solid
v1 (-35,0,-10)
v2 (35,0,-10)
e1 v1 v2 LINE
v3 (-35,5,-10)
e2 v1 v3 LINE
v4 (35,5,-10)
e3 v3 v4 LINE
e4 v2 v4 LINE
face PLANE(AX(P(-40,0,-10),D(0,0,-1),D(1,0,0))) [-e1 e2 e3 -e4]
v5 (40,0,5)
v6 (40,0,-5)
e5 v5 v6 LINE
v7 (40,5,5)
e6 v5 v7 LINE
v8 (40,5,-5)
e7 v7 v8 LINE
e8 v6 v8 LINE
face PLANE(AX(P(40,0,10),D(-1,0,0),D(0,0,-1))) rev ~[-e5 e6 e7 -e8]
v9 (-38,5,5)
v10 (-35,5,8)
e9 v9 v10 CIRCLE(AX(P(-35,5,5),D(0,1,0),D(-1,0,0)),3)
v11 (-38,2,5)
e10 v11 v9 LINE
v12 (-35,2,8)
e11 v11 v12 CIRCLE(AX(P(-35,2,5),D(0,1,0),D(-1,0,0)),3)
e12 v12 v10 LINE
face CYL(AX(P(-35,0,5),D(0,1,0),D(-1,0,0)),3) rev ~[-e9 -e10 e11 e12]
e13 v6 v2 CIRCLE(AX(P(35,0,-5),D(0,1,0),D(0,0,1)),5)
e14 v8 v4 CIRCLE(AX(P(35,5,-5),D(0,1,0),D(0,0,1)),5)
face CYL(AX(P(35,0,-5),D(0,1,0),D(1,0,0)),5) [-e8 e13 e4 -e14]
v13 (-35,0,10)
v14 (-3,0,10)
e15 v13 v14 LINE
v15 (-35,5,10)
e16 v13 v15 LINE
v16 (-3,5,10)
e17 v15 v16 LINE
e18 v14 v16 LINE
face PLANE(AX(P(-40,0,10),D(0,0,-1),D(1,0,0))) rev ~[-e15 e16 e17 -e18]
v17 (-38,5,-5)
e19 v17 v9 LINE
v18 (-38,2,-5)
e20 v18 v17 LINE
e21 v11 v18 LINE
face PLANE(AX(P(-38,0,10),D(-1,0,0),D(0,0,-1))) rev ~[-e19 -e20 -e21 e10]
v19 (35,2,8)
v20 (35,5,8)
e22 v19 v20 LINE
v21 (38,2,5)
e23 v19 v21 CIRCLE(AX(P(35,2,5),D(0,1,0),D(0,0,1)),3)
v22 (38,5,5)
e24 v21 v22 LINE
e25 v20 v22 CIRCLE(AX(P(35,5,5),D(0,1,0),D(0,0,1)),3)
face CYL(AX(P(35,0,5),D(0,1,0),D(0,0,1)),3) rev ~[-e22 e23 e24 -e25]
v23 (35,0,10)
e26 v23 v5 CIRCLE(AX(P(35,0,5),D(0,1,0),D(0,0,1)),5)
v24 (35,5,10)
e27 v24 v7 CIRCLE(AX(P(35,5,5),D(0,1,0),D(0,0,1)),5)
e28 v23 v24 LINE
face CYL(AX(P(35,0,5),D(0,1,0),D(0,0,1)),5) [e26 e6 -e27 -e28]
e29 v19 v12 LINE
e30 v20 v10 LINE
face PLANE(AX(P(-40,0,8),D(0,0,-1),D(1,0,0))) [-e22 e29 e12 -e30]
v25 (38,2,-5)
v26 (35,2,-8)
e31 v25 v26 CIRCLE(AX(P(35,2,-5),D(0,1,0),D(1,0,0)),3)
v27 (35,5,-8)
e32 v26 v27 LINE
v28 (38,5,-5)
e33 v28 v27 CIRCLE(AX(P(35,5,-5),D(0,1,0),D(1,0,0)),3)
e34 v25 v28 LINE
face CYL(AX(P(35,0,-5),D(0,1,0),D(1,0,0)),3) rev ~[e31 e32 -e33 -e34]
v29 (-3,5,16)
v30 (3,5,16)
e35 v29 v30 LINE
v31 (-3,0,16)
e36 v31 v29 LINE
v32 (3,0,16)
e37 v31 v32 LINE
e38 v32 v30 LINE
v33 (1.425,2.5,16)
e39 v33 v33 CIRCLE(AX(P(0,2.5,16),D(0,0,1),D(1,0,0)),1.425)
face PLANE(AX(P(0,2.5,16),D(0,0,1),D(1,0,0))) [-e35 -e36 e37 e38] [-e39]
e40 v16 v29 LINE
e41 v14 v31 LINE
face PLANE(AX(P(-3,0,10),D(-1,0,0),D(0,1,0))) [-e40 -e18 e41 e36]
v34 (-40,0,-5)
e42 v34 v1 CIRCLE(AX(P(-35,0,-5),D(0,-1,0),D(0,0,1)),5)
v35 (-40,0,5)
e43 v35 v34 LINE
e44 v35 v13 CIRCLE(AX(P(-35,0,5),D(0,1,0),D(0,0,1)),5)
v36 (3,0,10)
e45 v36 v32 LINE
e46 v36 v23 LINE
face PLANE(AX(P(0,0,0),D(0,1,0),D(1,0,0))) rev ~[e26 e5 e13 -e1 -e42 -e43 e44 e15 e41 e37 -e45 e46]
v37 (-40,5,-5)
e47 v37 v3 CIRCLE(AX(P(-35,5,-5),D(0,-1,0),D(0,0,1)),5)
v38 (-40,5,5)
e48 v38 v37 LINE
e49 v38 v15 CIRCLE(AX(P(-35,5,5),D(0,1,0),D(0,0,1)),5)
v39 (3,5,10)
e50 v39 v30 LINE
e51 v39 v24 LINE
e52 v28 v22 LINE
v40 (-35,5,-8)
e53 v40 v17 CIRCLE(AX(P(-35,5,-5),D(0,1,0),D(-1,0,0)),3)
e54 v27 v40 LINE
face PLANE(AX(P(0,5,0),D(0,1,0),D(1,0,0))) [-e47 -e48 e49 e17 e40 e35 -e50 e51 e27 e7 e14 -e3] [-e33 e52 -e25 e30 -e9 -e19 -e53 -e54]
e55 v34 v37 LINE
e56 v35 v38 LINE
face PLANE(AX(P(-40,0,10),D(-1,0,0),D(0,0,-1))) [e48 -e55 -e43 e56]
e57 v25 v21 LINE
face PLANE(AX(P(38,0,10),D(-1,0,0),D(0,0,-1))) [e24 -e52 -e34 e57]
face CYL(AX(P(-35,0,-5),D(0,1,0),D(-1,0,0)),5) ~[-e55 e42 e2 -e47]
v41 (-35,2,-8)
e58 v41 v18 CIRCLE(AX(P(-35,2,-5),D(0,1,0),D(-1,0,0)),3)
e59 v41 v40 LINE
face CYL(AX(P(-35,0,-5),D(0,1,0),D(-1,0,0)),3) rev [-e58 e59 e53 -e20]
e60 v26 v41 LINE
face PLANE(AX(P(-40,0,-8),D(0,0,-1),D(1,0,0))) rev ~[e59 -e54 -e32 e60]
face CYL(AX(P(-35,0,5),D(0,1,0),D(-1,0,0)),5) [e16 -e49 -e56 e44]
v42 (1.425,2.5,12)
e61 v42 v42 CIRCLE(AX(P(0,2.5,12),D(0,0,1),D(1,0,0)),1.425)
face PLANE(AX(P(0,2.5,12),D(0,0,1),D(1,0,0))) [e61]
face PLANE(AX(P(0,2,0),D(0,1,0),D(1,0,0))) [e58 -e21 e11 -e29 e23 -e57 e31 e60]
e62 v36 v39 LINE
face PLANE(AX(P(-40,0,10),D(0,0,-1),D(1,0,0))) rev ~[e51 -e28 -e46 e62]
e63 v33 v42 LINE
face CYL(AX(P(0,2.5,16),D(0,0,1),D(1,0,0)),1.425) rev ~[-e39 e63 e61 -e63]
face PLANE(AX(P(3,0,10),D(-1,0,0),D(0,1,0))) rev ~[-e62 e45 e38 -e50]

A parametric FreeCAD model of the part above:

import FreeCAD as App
import Part
import Sketcher
from FreeCAD import Vector


def edges_at(feature, points):
    """Names of the edges that pass closest to the given points."""
    edges = feature.Shape.Edges
    near = lambda p: min(range(len(edges)), key=lambda i: edges[i].distToShape(Part.Vertex(*p))[0])
    return sorted({f"Edge{near(p) + 1}" for p in points})


def faces_at(feature, points):
    """Names of the faces that lie closest to the given points."""
    faces = feature.Shape.Faces
    near = lambda p: min(range(len(faces)), key=lambda i: faces[i].distToShape(Part.Vertex(*p))[0])
    return sorted({f"Face{near(p) + 1}" for p in points})

doc = App.newDocument("Part")
params = doc.addObject("Spreadsheet::Sheet", "Params")
for row, (alias, value) in enumerate([
    ("sketch1_width", "80 mm"),
    ("sketch1_height", "20 mm"),
    ("pad1_length", "5 mm"),
    ("fillet_radius", "5 mm"),
    ("thickness_wall", "2 mm"),
    ("sketch2_width", "6 mm"),
    ("sketch2_height", "5 mm"),
    ("pad2_length", "6 mm"),
    ("sketch3_diameter", "2.85 mm"),
    ("pocket1_length", "4 mm"),
], start=1):
    params.set(f"A{row}", alias)
    params.set(f"B{row}", "=" + value)
    params.setAlias(f"B{row}", alias)

body = doc.addObject("PartDesign::Body", "Body")

# Sketch on XZ plane
sketch1 = doc.addObject("Sketcher::SketchObject", "Sketch")
body.addObject(sketch1)
sketch1.AttachmentSupport = (doc.XZ_Plane, [""])
sketch1.MapMode = "FlatFace"
sketch1.addGeometry([
    Part.LineSegment(Vector(-40, -10, 0), Vector(-40, 10, 0)),
    Part.LineSegment(Vector(-40, 10, 0), Vector(40, 10, 0)),
    Part.LineSegment(Vector(40, 10, 0), Vector(40, -10, 0)),
    Part.LineSegment(Vector(40, -10, 0), Vector(-40, -10, 0)),
], False)
sketch1.addConstraint([
    Sketcher.Constraint("Coincident", 0, 2, 1, 1),
    Sketcher.Constraint("Coincident", 1, 2, 2, 1),
    Sketcher.Constraint("Coincident", 2, 2, 3, 1),
    Sketcher.Constraint("Coincident", 3, 2, 0, 1),
    Sketcher.Constraint("Vertical", 0),
    Sketcher.Constraint("Horizontal", 1),
    Sketcher.Constraint("Vertical", 2),
    Sketcher.Constraint("Horizontal", 3),
    Sketcher.Constraint("Symmetric", 0, 2, 2, 2, -1, 1),
    Sketcher.Constraint("DistanceX", 1, 1, 1, 2, 80.0),
    Sketcher.Constraint("DistanceY", 0, 1, 0, 2, 20.0),
])
sketch1.setExpression("Constraints[9]", "Params.sketch1_width")
sketch1.setExpression("Constraints[10]", "Params.sketch1_height")
pad1 = doc.addObject("PartDesign::Pad", "Pad")
body.addObject(pad1)
pad1.Profile = sketch1
pad1.setExpression("Length", "Params.pad1_length")
pad1.Reversed = True
doc.recompute()

fillet = doc.addObject("PartDesign::Fillet", "Fillet")
body.addObject(fillet)
fillet.Base = (pad1, edges_at(pad1, [
    (40, 2.5, 10),
    (-40, 2.5, 10),
    (-40, 2.5, -10),
    (40, 2.5, -10),
]))
fillet.setExpression("Radius", "Params.fillet_radius")
doc.recompute()

thickness = doc.addObject("PartDesign::Thickness", "Thickness")
body.addObject(thickness)
thickness.Base = (fillet, faces_at(fillet, [(0, 5, 0)]))
thickness.setExpression("Value", "Params.thickness_wall")
thickness.Reversed = True
thickness.Join = "Intersection"

# Sketch on XY plane
sketch2 = doc.addObject("Sketcher::SketchObject", "Sketch001")
body.addObject(sketch2)
sketch2.AttachmentSupport = (doc.XY_Plane, [""])
sketch2.MapMode = "FlatFace"
sketch2.AttachmentOffset = App.Placement(Vector(0, 0, 10), App.Rotation())
sketch2.addGeometry([
    Part.LineSegment(Vector(-3, 5, 0), Vector(-3, 0, 0)),
    Part.LineSegment(Vector(-3, 0, 0), Vector(3, 0, 0)),
    Part.LineSegment(Vector(3, 0, 0), Vector(3, 5, 0)),
    Part.LineSegment(Vector(3, 5, 0), Vector(-3, 5, 0)),
], False)
sketch2.addConstraint([
    Sketcher.Constraint("Coincident", 0, 2, 1, 1),
    Sketcher.Constraint("Coincident", 1, 2, 2, 1),
    Sketcher.Constraint("Coincident", 2, 2, 3, 1),
    Sketcher.Constraint("Coincident", 3, 2, 0, 1),
    Sketcher.Constraint("Vertical", 0),
    Sketcher.Constraint("Horizontal", 1),
    Sketcher.Constraint("Vertical", 2),
    Sketcher.Constraint("Horizontal", 3),
    Sketcher.Constraint("Symmetric", 0, 2, 1, 2, -1, 1),
    Sketcher.Constraint("DistanceX", 1, 1, 1, 2, 6.0),
    Sketcher.Constraint("DistanceY", 0, 2, 0, 1, 5.0),
])
sketch2.setExpression("Constraints[9]", "Params.sketch2_width")
sketch2.setExpression("Constraints[10]", "Params.sketch2_height")
pad2 = doc.addObject("PartDesign::Pad", "Pad001")
body.addObject(pad2)
pad2.Profile = sketch2
pad2.setExpression("Length", "Params.pad2_length")

# Sketch on XY plane
sketch3 = doc.addObject("Sketcher::SketchObject", "Sketch002")
body.addObject(sketch3)
sketch3.AttachmentSupport = (doc.XY_Plane, [""])
sketch3.MapMode = "FlatFace"
sketch3.AttachmentOffset = App.Placement(Vector(0, 0, 16), App.Rotation())
sketch3.addGeometry(Part.Circle(Vector(0, 2.5, 0), Vector(0, 0, 1), 1.425), False)
sketch3.addConstraint([
    Sketcher.Constraint("PointOnObject", 0, 3, -2),
    Sketcher.Constraint("Diameter", 0, 2.85),
    Sketcher.Constraint("DistanceY", -1, 1, 0, 3, 2.5),
])
sketch3.setExpression("Constraints[1]", "Params.sketch3_diameter")
pocket1 = doc.addObject("PartDesign::Pocket", "Pocket")
body.addObject(pocket1)
pocket1.Profile = sketch3
pocket1.setExpression("Length", "Params.pocket1_length")

doc.recompute()
